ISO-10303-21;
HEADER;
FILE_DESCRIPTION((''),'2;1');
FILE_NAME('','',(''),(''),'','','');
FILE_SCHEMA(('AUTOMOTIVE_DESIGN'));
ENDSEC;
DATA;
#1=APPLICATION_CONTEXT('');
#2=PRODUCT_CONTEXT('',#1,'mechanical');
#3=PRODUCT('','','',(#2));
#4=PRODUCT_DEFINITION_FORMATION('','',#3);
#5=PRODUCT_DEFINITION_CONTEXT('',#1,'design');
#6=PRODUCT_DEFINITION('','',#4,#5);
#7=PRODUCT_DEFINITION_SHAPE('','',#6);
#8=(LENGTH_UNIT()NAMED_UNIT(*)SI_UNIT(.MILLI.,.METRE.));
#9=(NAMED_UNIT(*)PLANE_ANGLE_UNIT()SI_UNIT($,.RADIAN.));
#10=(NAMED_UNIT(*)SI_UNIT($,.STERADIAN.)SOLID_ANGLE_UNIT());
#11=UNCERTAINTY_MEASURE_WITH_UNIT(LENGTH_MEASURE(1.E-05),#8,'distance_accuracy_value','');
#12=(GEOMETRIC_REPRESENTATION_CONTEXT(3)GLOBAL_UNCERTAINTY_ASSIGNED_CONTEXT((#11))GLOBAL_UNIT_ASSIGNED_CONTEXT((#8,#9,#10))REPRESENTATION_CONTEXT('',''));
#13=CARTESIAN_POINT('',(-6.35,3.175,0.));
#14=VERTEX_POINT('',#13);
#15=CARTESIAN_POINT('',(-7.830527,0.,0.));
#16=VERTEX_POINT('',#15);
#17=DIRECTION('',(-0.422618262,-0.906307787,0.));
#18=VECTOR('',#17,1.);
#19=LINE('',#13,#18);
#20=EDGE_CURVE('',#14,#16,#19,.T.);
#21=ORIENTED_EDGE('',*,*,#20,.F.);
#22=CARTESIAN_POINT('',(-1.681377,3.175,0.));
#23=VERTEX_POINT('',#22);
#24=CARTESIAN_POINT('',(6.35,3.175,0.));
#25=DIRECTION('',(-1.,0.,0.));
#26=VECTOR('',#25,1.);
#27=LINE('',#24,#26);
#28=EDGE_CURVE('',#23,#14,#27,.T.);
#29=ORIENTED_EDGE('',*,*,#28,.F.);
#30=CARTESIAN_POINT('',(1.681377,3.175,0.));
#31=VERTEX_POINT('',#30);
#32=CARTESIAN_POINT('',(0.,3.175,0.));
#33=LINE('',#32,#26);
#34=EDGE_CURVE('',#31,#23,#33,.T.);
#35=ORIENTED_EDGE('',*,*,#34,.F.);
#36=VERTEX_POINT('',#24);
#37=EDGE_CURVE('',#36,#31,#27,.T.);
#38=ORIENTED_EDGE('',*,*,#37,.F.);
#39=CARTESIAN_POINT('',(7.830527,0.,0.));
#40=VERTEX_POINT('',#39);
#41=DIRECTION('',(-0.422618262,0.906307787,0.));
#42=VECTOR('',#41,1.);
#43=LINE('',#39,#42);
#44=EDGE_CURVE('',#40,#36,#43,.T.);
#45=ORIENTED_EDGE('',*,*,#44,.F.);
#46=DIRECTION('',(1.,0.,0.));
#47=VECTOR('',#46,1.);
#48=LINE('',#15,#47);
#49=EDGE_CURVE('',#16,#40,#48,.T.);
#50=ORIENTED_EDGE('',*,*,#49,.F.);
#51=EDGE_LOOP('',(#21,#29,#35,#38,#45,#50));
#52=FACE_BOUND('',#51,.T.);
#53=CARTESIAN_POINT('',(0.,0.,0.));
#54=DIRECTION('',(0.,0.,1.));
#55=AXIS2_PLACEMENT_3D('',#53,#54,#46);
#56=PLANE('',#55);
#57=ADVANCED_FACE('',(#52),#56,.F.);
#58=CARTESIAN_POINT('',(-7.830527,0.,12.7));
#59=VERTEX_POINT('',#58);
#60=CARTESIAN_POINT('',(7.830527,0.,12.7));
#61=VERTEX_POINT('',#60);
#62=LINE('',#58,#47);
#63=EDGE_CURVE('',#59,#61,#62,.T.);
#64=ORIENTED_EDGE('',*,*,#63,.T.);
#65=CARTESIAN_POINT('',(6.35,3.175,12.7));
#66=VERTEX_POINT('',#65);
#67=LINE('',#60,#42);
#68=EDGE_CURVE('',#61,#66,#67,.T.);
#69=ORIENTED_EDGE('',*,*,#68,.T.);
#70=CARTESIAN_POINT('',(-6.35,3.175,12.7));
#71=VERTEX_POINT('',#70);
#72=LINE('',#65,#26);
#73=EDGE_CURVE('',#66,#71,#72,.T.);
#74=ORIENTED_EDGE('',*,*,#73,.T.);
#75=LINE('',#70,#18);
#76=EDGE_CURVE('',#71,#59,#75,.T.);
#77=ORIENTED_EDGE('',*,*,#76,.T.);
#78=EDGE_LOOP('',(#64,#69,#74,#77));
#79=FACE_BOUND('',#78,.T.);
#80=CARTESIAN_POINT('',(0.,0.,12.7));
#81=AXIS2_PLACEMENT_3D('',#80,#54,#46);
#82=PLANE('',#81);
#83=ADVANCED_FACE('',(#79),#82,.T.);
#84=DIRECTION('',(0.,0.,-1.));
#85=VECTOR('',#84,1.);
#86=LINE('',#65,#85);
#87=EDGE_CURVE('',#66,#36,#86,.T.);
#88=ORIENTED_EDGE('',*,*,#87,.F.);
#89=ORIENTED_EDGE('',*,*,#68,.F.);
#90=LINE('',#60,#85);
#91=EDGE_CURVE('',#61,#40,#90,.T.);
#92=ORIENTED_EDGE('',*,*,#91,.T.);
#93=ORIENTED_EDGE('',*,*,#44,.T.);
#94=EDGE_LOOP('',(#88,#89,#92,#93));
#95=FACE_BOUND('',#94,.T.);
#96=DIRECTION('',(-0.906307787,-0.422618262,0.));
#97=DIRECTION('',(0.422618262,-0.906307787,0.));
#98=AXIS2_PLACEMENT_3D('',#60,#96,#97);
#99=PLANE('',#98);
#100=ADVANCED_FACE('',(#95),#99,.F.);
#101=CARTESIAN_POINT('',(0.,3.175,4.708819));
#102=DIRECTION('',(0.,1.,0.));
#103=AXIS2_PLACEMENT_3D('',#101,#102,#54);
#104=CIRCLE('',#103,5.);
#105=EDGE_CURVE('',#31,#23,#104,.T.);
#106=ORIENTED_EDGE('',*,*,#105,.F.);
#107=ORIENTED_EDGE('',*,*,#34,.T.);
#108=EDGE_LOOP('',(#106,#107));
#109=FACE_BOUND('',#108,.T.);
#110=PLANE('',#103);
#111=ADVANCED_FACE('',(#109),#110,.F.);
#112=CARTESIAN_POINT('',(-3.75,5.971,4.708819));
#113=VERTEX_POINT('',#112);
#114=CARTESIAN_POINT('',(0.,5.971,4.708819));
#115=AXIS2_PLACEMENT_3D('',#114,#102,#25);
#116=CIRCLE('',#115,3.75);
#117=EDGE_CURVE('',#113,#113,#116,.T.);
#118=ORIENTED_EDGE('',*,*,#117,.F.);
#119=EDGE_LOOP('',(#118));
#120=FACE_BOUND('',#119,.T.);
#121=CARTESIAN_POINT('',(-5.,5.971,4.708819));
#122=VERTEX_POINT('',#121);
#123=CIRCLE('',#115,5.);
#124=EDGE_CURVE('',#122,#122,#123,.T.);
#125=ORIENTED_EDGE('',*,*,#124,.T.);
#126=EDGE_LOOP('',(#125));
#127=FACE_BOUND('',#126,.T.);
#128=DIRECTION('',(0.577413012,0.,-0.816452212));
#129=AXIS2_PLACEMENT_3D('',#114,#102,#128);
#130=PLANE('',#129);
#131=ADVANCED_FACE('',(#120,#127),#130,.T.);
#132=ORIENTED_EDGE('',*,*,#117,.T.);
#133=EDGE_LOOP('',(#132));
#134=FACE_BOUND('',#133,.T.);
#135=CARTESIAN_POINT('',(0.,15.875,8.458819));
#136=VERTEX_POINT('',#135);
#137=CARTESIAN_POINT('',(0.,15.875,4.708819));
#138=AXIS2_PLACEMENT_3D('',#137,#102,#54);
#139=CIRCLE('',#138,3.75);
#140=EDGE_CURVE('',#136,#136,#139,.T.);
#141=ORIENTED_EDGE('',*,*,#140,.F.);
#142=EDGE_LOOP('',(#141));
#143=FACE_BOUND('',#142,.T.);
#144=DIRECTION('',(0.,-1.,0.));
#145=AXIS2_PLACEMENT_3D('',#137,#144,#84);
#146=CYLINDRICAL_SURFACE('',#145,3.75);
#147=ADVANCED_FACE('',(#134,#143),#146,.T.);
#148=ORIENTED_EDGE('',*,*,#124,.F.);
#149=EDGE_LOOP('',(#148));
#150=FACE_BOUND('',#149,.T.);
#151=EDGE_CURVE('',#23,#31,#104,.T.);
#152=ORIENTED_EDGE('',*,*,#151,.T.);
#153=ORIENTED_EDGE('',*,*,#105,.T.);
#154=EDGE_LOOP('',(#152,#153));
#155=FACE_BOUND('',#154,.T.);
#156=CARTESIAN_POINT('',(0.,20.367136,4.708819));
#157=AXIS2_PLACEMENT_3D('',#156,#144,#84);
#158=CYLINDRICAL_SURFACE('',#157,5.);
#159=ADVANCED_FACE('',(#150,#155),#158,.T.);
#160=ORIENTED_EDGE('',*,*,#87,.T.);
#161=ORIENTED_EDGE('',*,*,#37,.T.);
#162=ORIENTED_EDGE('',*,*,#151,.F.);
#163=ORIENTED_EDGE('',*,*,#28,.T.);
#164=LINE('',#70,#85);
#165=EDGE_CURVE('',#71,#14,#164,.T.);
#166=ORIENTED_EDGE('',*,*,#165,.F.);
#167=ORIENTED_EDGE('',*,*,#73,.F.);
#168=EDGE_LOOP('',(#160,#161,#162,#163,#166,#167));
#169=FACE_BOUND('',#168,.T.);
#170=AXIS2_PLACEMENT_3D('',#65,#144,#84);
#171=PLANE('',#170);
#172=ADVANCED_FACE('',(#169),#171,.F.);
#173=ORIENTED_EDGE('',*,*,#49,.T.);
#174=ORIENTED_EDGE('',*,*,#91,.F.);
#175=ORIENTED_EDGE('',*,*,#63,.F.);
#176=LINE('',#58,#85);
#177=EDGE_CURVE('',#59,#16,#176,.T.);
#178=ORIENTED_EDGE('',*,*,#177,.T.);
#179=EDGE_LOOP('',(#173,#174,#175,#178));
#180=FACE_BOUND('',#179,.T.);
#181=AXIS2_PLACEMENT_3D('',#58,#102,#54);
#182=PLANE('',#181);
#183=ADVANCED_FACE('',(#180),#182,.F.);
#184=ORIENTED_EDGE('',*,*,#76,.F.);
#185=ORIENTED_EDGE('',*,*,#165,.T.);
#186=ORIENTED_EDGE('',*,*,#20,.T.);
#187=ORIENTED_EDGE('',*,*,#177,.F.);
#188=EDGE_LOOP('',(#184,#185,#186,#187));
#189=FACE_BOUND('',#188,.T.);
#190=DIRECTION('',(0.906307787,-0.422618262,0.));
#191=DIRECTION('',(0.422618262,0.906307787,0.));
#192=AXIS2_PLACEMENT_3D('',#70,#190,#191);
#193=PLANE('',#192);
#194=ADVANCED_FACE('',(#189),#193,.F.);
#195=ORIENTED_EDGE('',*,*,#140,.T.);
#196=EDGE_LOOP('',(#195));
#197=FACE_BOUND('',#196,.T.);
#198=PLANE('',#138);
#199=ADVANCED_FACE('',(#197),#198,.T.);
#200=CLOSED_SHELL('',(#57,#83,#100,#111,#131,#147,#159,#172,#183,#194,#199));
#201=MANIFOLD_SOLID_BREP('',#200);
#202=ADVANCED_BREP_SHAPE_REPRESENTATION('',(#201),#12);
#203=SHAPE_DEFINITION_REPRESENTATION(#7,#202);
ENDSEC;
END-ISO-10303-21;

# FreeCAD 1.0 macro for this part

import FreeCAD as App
import Part
import Sketcher
Q = App.Units.Quantity


def add_polygon(sketch, points):
    """Adds a closed chain of lines whose ends are joined by coincident constraints."""
    first, n = sketch.GeometryCount, len(points)
    for a, b in zip(points, points[1:] + points[:1]):
        sketch.addGeometry(Part.LineSegment(App.Vector(*a, 0), App.Vector(*b, 0)), False)
    for i in range(n):
        sketch.addConstraint(Sketcher.Constraint("Coincident", first + i, 2, first + (i + 1) % n, 1))

doc = App.newDocument("Part")
body = doc.addObject("PartDesign::Body", "Body")

# Sketch on XY plane
sketch1 = body.newObject("Sketcher::SketchObject", "Sketch")
sketch1.AttachmentSupport = (doc.getObject("XY_Plane"), [""])
sketch1.MapMode = "FlatFace"
add_polygon(sketch1, [(-7.8, 0), (7.8, 0), (6.3, 3.2), (-6.3, 3.2)])  # lines 0-3
sketch1.addConstraint(Sketcher.Constraint("Horizontal", 0))
sketch1.addConstraint(Sketcher.Constraint("Horizontal", 2))
sketch1.addConstraint(Sketcher.Constraint("Symmetric", 0, 2, 3, 2, -1, 1))
sketch1.addConstraint(Sketcher.Constraint("Equal", 1, 3))
sketch1.addConstraint(Sketcher.Constraint("Angle", 1, Q("115 deg")))
sketch1.addConstraint(Sketcher.Constraint("DistanceX", 2, 2, 2, 1, 12.7))
sketch1.addConstraint(Sketcher.Constraint("DistanceY", -1, 1, 1, 2, 3.175))
pad1 = body.newObject("PartDesign::Pad", "Pad")
pad1.Profile = sketch1
pad1.Length = 12.7

# Sketch on XZ plane
sketch2 = body.newObject("Sketcher::SketchObject", "Sketch001")
sketch2.AttachmentSupport = (doc.getObject("XZ_Plane"), [""])
sketch2.MapMode = "FlatFace"
sketch2.AttachmentOffset = App.Placement(App.Vector(0, 0, -3.175), App.Rotation())
sketch2.addGeometry(Part.Circle(App.Vector(0, 4.7, 0), App.Vector(0, 0, 1), 3.8), False)
sketch2.addConstraint(Sketcher.Constraint("PointOnObject", 0, 3, -2))
sketch2.addConstraint(Sketcher.Constraint("Diameter", 0, 7.5))
sketch2.addConstraint(Sketcher.Constraint("DistanceY", -1, 1, 0, 3, 4.708819))
pad2 = body.newObject("PartDesign::Pad", "Pad001")
pad2.Profile = sketch2
pad2.Length = 12.7
pad2.Reversed = True

# Sketch on XZ plane
sketch3 = body.newObject("Sketcher::SketchObject", "Sketch002")
sketch3.AttachmentSupport = (doc.getObject("XZ_Plane"), [""])
sketch3.MapMode = "FlatFace"
sketch3.AttachmentOffset = App.Placement(App.Vector(0, 0, -3.175), App.Rotation())
sketch3.addGeometry(Part.Circle(App.Vector(0, 5, 0), App.Vector(0, 0, 1), 5), False)
sketch3.addConstraint(Sketcher.Constraint("PointOnObject", 0, 3, -2))
sketch3.addConstraint(Sketcher.Constraint("Diameter", 0, 10.0))
sketch3.addConstraint(Sketcher.Constraint("DistanceY", -1, 1, 0, 3, 4.708819))
pad3 = body.newObject("PartDesign::Pad", "Pad002")
pad3.Profile = sketch3
pad3.Length = 2.796
pad3.Reversed = True

doc.recompute()
